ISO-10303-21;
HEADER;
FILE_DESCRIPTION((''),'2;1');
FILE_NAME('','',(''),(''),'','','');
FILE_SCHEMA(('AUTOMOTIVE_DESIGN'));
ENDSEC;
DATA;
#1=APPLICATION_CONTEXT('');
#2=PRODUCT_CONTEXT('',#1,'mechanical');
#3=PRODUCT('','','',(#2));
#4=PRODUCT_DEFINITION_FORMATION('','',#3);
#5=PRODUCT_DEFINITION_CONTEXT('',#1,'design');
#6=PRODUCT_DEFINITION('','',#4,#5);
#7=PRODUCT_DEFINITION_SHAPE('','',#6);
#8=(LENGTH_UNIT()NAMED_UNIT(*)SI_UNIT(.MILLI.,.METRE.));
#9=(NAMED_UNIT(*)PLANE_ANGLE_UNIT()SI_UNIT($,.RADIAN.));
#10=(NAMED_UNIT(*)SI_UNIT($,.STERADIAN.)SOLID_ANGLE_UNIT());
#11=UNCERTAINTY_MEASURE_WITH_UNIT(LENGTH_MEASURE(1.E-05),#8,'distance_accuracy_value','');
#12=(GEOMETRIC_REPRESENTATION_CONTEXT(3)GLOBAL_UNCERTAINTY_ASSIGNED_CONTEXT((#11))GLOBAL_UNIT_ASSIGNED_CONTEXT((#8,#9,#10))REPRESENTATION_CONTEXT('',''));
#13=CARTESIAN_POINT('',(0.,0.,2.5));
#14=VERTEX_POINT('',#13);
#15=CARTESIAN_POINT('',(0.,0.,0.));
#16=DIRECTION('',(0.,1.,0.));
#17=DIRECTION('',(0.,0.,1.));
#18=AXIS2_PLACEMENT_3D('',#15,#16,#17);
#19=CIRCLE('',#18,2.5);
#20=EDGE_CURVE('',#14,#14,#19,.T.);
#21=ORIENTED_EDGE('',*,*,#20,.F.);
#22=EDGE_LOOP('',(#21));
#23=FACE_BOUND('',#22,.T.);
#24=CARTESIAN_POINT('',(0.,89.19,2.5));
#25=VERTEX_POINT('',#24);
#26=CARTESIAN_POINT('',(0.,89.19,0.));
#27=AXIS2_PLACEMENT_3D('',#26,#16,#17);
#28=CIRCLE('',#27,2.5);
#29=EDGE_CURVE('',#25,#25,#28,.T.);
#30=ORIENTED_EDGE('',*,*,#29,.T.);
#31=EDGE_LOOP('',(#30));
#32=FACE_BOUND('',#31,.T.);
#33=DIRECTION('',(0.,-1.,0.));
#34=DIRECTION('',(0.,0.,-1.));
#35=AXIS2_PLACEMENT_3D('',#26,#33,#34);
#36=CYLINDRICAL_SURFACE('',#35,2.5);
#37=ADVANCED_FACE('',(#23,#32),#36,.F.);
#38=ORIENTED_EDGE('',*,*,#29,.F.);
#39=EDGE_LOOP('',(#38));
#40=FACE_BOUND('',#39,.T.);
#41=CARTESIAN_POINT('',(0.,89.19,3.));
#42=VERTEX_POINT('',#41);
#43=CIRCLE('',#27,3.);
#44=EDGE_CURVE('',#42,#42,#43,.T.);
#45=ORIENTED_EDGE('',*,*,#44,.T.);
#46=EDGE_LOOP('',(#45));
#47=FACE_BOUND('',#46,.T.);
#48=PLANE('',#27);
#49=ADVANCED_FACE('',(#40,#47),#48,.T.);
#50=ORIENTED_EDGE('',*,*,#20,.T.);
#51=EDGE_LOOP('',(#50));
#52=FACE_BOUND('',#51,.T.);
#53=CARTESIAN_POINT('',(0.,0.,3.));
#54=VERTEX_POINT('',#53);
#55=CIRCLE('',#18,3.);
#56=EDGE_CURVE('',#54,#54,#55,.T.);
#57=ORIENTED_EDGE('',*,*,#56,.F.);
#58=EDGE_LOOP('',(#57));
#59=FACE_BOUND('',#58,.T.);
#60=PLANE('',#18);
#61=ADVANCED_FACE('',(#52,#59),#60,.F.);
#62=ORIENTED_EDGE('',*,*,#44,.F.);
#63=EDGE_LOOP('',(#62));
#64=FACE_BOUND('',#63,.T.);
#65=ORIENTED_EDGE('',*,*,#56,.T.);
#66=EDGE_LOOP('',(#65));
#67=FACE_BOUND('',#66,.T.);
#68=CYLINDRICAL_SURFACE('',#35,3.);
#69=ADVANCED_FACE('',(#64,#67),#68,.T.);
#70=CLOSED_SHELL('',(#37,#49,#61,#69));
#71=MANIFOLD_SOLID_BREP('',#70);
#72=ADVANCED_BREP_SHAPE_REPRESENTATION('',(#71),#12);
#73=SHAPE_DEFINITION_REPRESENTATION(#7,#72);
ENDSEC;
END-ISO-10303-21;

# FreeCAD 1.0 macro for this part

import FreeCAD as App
import Part
import Sketcher
from FreeCAD import Vector
Q = App.Units.Quantity

doc = App.newDocument("Part")
params = doc.addObject("Spreadsheet::Sheet", "Params")
for row, (alias, value) in enumerate([
    ("sketch1_diameter", "6 mm"),
    ("sketch1_diameter2", "5 mm"),
    ("pad1_length", "89.19 mm"),
], start=1):
    params.set(f"A{row}", alias)
    params.set(f"B{row}", "=" + value)
    params.setAlias(f"B{row}", alias)

body = doc.addObject("PartDesign::Body", "Body")

sketch1 = body.newObject("Sketcher::SketchObject", "Sketch")
sketch1.AttachmentSupport = (doc.getObject("XZ_Plane"), [""])
sketch1.MapMode = "FlatFace"
sketch1.addGeometry([
    Part.Circle(Vector(0, 0, 0), Vector(0, 0, 1), 3),
    Part.Circle(Vector(0, 0, 0), Vector(0, 0, 1), 2.5),
], False)
sketch1.addConstraint([
    Sketcher.Constraint("Coincident", 0, 3, -1, 1),
    Sketcher.Constraint("Coincident", 1, 3, -1, 1),
    Sketcher.Constraint("Diameter", 0, Q("6 mm")),
    Sketcher.Constraint("Diameter", 1, Q("5 mm")),
])
sketch1.setExpression("Constraints[2]", "Params.sketch1_diameter")
sketch1.setExpression("Constraints[3]", "Params.sketch1_diameter2")
pad1 = body.newObject("PartDesign::Pad", "Pad")
pad1.Profile = sketch1
pad1.setExpression("Length", "Params.pad1_length")
pad1.Reversed = True

doc.recompute()
